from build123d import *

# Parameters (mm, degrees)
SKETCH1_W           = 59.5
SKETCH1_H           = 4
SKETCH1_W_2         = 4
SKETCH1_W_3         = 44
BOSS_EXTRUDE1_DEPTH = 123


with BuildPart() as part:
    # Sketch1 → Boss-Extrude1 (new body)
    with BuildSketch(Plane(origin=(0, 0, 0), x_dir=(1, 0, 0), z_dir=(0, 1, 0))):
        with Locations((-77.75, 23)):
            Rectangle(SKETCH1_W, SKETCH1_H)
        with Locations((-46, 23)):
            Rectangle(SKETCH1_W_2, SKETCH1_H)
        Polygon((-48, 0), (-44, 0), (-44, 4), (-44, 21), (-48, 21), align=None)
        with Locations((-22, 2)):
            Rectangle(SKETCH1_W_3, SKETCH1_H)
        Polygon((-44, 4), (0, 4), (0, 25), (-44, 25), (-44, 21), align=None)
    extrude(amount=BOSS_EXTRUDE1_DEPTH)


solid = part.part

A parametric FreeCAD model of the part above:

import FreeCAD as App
import Part
import Sketcher
Q = App.Units.Quantity


def add_polygon(sketch, points):
    """Adds a closed chain of lines whose ends are joined by coincident constraints."""
    first, n = sketch.GeometryCount, len(points)
    for a, b in zip(points, points[1:] + points[:1]):
        sketch.addGeometry(Part.LineSegment(App.Vector(*a, 0), App.Vector(*b, 0)), False)
    for i in range(n):
        sketch.addConstraint(Sketcher.Constraint("Coincident", first + i, 2, first + (i + 1) % n, 1))

doc = App.newDocument("Part")
body = doc.addObject("PartDesign::Body", "Body")

# Sketch on XZ plane
sketch1 = body.newObject("Sketcher::SketchObject", "Sketch")
sketch1.AttachmentSupport = (doc.getObject("XZ_Plane"), [""])
sketch1.MapMode = "FlatFace"
add_polygon(sketch1, [(-107.5, -25), (-107.5, -21), (-48, -21), (-48, 0), (0, 0), (0, -25)])  # lines 0-5
sketch1.addConstraint(Sketcher.Constraint("Vertical", 0))
sketch1.addConstraint(Sketcher.Constraint("Horizontal", 1))
sketch1.addConstraint(Sketcher.Constraint("Vertical", 2))
sketch1.addConstraint(Sketcher.Constraint("Horizontal", 3))
sketch1.addConstraint(Sketcher.Constraint("Vertical", 4))
sketch1.addConstraint(Sketcher.Constraint("Horizontal", 5))
sketch1.addConstraint(Sketcher.Constraint("Coincident", 3, 2, -1, 1))
sketch1.addConstraint(Sketcher.Constraint("DistanceX", 3, 1, 3, 2, Q("48 mm")))
sketch1.addConstraint(Sketcher.Constraint("DistanceY", 0, 1, 0, 2, Q("4 mm")))
sketch1.addConstraint(Sketcher.Constraint("DistanceY", 2, 1, 2, 2, Q("21 mm")))
sketch1.addConstraint(Sketcher.Constraint("DistanceX", 1, 1, 1, 2, Q("59.5 mm")))
pad1 = body.newObject("PartDesign::Pad", "Pad")
pad1.Profile = sketch1
pad1.Length = 123
pad1.Reversed = True

doc.recompute()
